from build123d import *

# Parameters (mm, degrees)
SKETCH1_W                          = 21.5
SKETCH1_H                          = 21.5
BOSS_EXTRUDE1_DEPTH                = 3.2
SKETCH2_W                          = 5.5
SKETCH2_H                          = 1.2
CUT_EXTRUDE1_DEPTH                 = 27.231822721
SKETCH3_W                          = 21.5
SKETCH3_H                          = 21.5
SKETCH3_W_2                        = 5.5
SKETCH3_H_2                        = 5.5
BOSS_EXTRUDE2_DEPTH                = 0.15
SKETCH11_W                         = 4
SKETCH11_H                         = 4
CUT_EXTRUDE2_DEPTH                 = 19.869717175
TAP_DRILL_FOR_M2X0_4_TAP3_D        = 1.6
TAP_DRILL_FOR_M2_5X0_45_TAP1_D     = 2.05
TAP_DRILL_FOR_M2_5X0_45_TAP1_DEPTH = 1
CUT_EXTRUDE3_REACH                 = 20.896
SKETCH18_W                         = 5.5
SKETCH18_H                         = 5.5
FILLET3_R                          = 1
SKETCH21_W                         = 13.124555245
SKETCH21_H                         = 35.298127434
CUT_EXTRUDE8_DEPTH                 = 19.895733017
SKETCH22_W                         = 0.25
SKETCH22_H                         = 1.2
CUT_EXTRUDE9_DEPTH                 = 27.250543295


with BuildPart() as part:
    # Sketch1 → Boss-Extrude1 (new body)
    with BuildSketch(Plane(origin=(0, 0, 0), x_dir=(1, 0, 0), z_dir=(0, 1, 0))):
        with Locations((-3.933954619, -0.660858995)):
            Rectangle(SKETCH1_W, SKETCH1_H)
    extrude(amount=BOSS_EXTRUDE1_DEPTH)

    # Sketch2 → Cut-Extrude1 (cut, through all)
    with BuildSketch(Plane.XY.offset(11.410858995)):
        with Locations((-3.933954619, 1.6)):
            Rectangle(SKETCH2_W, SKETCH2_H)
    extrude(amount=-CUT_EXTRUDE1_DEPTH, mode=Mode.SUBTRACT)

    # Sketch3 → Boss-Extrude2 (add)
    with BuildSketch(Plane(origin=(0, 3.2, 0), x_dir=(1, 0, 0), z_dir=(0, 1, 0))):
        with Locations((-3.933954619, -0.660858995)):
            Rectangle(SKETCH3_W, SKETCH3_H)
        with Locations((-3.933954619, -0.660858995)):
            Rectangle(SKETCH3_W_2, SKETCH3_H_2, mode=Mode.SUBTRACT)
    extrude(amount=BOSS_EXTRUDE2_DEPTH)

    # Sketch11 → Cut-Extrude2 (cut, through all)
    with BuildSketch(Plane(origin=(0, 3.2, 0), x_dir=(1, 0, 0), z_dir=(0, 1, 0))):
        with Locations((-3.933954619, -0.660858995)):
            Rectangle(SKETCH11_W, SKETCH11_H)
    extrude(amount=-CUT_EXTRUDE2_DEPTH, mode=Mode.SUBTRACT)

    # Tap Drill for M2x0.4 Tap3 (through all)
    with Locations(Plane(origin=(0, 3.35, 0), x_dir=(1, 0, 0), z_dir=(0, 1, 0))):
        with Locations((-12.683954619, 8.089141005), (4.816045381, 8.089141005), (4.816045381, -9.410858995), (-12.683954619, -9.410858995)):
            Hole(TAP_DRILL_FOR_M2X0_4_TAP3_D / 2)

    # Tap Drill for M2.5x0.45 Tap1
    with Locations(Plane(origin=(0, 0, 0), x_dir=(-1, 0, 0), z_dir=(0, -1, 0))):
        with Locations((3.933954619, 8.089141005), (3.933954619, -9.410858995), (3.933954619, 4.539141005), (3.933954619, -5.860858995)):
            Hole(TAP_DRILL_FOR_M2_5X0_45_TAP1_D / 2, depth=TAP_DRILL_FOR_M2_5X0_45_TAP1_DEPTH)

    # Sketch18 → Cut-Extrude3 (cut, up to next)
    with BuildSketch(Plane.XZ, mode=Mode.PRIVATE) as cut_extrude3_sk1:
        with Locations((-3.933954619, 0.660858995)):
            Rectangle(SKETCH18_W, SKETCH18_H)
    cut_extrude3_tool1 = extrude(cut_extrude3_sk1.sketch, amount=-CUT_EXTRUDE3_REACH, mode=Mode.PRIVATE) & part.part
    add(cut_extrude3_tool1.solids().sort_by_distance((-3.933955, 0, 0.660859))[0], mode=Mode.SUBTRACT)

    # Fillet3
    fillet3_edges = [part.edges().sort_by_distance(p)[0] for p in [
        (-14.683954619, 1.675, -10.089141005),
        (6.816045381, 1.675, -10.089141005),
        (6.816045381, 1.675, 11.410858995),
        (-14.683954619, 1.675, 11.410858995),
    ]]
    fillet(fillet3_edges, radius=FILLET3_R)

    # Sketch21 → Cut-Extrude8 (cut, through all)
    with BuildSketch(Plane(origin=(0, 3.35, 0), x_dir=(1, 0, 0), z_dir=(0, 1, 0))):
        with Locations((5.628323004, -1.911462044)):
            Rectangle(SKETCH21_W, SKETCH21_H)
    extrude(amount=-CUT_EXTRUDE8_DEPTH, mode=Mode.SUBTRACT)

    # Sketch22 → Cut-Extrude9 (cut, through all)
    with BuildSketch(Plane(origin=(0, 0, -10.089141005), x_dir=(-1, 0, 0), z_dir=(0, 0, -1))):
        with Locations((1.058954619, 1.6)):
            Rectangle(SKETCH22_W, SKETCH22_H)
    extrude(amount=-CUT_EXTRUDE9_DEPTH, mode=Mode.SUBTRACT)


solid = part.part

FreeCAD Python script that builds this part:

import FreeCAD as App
import Part
import Sketcher
from FreeCAD import Vector
Q = App.Units.Quantity


def edges_at(feature, points):
    """Names of the edges that pass closest to the given points."""
    edges = feature.Shape.Edges
    near = lambda p: min(range(len(edges)), key=lambda i: edges[i].distToShape(Part.Vertex(*p))[0])
    return sorted({f"Edge{near(p) + 1}" for p in points})

doc = App.newDocument("Part")
body = doc.addObject("PartDesign::Body", "Body")

# Sketch on XZ plane
sketch1 = doc.addObject("Sketcher::SketchObject", "Sketch")
body.addObject(sketch1)
sketch1.AttachmentSupport = (doc.XZ_Plane, [""])
sketch1.MapMode = "FlatFace"
sketch1.addGeometry([
    Part.LineSegment(Vector(-15, -10, 0), Vector(-15, 11, 0)),
    Part.LineSegment(Vector(-15, 11, 0), Vector(7, 11, 0)),
    Part.LineSegment(Vector(7, 11, 0), Vector(7, -10, 0)),
    Part.LineSegment(Vector(7, -10, 0), Vector(-15, -10, 0)),
], False)
sketch1.addConstraint([
    Sketcher.Constraint("Coincident", 0, 2, 1, 1),
    Sketcher.Constraint("Coincident", 1, 2, 2, 1),
    Sketcher.Constraint("Coincident", 2, 2, 3, 1),
    Sketcher.Constraint("Coincident", 3, 2, 0, 1),
    Sketcher.Constraint("Vertical", 0),
    Sketcher.Constraint("Horizontal", 1),
    Sketcher.Constraint("Vertical", 2),
    Sketcher.Constraint("Horizontal", 3),
    Sketcher.Constraint("Equal", 3, 0),
    Sketcher.Constraint("DistanceX", 1, 1, 1, 2, Q("21.5 mm")),
    Sketcher.Constraint("DistanceY", -1, 1, 0, 2, Q("11.410859 mm")),
    Sketcher.Constraint("DistanceX", 0, 2, -1, 1, Q("14.683955 mm")),
])
pad1 = doc.addObject("PartDesign::Pad", "Pad")
body.addObject(pad1)
pad1.Profile = sketch1
pad1.Length = 3.2
pad1.Reversed = True

# Sketch on XY plane
sketch2 = doc.addObject("Sketcher::SketchObject", "Sketch001")
body.addObject(sketch2)
sketch2.AttachmentSupport = (doc.XY_Plane, [""])
sketch2.MapMode = "FlatFace"
sketch2.AttachmentOffset = App.Placement(Vector(0, 0, 11.410859), App.Rotation())
sketch2.addGeometry([
    Part.LineSegment(Vector(-6.7, 2.2, 0), Vector(-6.7, 1, 0)),
    Part.LineSegment(Vector(-6.7, 1, 0), Vector(-1.2, 1, 0)),
    Part.LineSegment(Vector(-1.2, 1, 0), Vector(-1.2, 2.2, 0)),
    Part.LineSegment(Vector(-1.2, 2.2, 0), Vector(-6.7, 2.2, 0)),
], False)
sketch2.addConstraint([
    Sketcher.Constraint("Coincident", 0, 2, 1, 1),
    Sketcher.Constraint("Coincident", 1, 2, 2, 1),
    Sketcher.Constraint("Coincident", 2, 2, 3, 1),
    Sketcher.Constraint("Coincident", 3, 2, 0, 1),
    Sketcher.Constraint("Vertical", 0),
    Sketcher.Constraint("Horizontal", 1),
    Sketcher.Constraint("Vertical", 2),
    Sketcher.Constraint("Horizontal", 3),
    Sketcher.Constraint("DistanceX", 1, 1, 1, 2, Q("5.5 mm")),
    Sketcher.Constraint("DistanceY", 0, 2, 0, 1, Q("1.2 mm")),
    Sketcher.Constraint("DistanceY", -1, 1, 0, 2, Q("1 mm")),
    Sketcher.Constraint("DistanceX", 0, 2, -1, 1, Q("6.683955 mm")),
])
pocket1 = doc.addObject("PartDesign::Pocket", "Pocket")
body.addObject(pocket1)
pocket1.Profile = sketch2
pocket1.Type = "ThroughAll"

# Sketch on XZ plane
sketch3 = doc.addObject("Sketcher::SketchObject", "Sketch002")
body.addObject(sketch3)
sketch3.AttachmentSupport = (doc.XZ_Plane, [""])
sketch3.MapMode = "FlatFace"
sketch3.AttachmentOffset = App.Placement(Vector(0, 0, -3.2), App.Rotation())
sketch3.addGeometry([
    Part.LineSegment(Vector(-15, -10, 0), Vector(-15, 11, 0)),  # 0
    Part.LineSegment(Vector(-15, 11, 0), Vector(7, 11, 0)),  # 1
    Part.LineSegment(Vector(7, 11, 0), Vector(7, -10, 0)),  # 2
    Part.LineSegment(Vector(7, -10, 0), Vector(-15, -10, 0)),  # 3
    Part.LineSegment(Vector(-1, 3, 0), Vector(-7, 3, 0)),  # 4
    Part.LineSegment(Vector(-7, 3, 0), Vector(-7, -2, 0)),  # 5
    Part.LineSegment(Vector(-7, -2, 0), Vector(-1, -2, 0)),  # 6
    Part.LineSegment(Vector(-1, -2, 0), Vector(-1, 3, 0)),  # 7
], False)
sketch3.addConstraint([
    Sketcher.Constraint("Coincident", 0, 2, 1, 1),
    Sketcher.Constraint("Coincident", 1, 2, 2, 1),
    Sketcher.Constraint("Coincident", 2, 2, 3, 1),
    Sketcher.Constraint("Coincident", 3, 2, 0, 1),
    Sketcher.Constraint("Coincident", 4, 2, 5, 1),
    Sketcher.Constraint("Coincident", 5, 2, 6, 1),
    Sketcher.Constraint("Coincident", 6, 2, 7, 1),
    Sketcher.Constraint("Coincident", 7, 2, 4, 1),
    Sketcher.Constraint("Vertical", 0),
    Sketcher.Constraint("Horizontal", 1),
    Sketcher.Constraint("Vertical", 2),
    Sketcher.Constraint("Horizontal", 3),
    Sketcher.Constraint("Horizontal", 4),
    Sketcher.Constraint("Vertical", 5),
    Sketcher.Constraint("Horizontal", 6),
    Sketcher.Constraint("Vertical", 7),
    Sketcher.Constraint("Equal", 3, 0),
    Sketcher.Constraint("Equal", 6, 5),
    Sketcher.Constraint("DistanceX", 1, 1, 1, 2, Q("21.5 mm")),
    Sketcher.Constraint("DistanceX", 4, 2, 4, 1, Q("5.5 mm")),
    Sketcher.Constraint("DistanceX", 0, 2, 4, 2, Q("8 mm")),
    Sketcher.Constraint("DistanceY", 4, 2, 0, 2, Q("8 mm")),
    Sketcher.Constraint("DistanceY", -1, 1, 0, 2, Q("11.410859 mm")),
    Sketcher.Constraint("DistanceX", 0, 2, -1, 1, Q("14.683955 mm")),
])
pad2 = doc.addObject("PartDesign::Pad", "Pad001")
body.addObject(pad2)
pad2.Profile = sketch3
pad2.Length = 0.15
pad2.Reversed = True

# Sketch on XZ plane
sketch4 = doc.addObject("Sketcher::SketchObject", "Sketch003")
body.addObject(sketch4)
sketch4.AttachmentSupport = (doc.XZ_Plane, [""])
sketch4.MapMode = "FlatFace"
sketch4.AttachmentOffset = App.Placement(Vector(0, 0, -3.2), App.Rotation())
sketch4.addGeometry([
    Part.LineSegment(Vector(-5.9, -1.3, 0), Vector(-5.9, 2.7, 0)),
    Part.LineSegment(Vector(-5.9, 2.7, 0), Vector(-1.9, 2.7, 0)),
    Part.LineSegment(Vector(-1.9, 2.7, 0), Vector(-1.9, -1.3, 0)),
    Part.LineSegment(Vector(-1.9, -1.3, 0), Vector(-5.9, -1.3, 0)),
], False)
sketch4.addConstraint([
    Sketcher.Constraint("Coincident", 0, 2, 1, 1),
    Sketcher.Constraint("Coincident", 1, 2, 2, 1),
    Sketcher.Constraint("Coincident", 2, 2, 3, 1),
    Sketcher.Constraint("Coincident", 3, 2, 0, 1),
    Sketcher.Constraint("Vertical", 0),
    Sketcher.Constraint("Horizontal", 1),
    Sketcher.Constraint("Vertical", 2),
    Sketcher.Constraint("Horizontal", 3),
    Sketcher.Constraint("Equal", 3, 0),
    Sketcher.Constraint("DistanceX", 1, 1, 1, 2, Q("4 mm")),
    Sketcher.Constraint("DistanceY", -1, 1, 0, 2, Q("2.660859 mm")),
    Sketcher.Constraint("DistanceX", 0, 2, -1, 1, Q("5.933955 mm")),
])
pocket2 = doc.addObject("PartDesign::Pocket", "Pocket001")
body.addObject(pocket2)
pocket2.Profile = sketch4
pocket2.Type = "ThroughAll"
pocket2.Reversed = True

# Sketch on XZ plane
sketch5 = doc.addObject("Sketcher::SketchObject", "Sketch004")
body.addObject(sketch5)
sketch5.AttachmentSupport = (doc.XZ_Plane, [""])
sketch5.MapMode = "FlatFace"
sketch5.AttachmentOffset = App.Placement(Vector(0, 0, -3.35), App.Rotation())
sketch5.addGeometry([
    Part.Circle(Vector(-12.7, -8.1, 0), Vector(0, 0, 1), 0.8),
    Part.Circle(Vector(4.8, -8.1, 0), Vector(0, 0, 1), 0.8),
    Part.Circle(Vector(4.8, 9.4, 0), Vector(0, 0, 1), 0.8),
    Part.Circle(Vector(-12.7, 9.4, 0), Vector(0, 0, 1), 0.8),
], False)
sketch5.addConstraint([
    Sketcher.Constraint("Equal", 0, 1),
    Sketcher.Constraint("Equal", 1, 2),
    Sketcher.Constraint("Equal", 2, 3),
    Sketcher.Constraint("Horizontal", 0, 3, 1, 3),
    Sketcher.Constraint("Horizontal", 2, 3, 3, 3),
    Sketcher.Constraint("Vertical", 1, 3, 2, 3),
    Sketcher.Constraint("Vertical", 0, 3, 3, 3),
    Sketcher.Constraint("Diameter", 0, Q("1.6 mm")),
    Sketcher.Constraint("DistanceX", 0, 3, 1, 3, Q("17.5 mm")),
    Sketcher.Constraint("DistanceY", 1, 3, 2, 3, Q("17.5 mm")),
    Sketcher.Constraint("DistanceY", 0, 3, -1, 1, Q("8.089141 mm")),
    Sketcher.Constraint("DistanceX", 0, 3, -1, 1, Q("12.683955 mm")),
])
doc.recompute()
hole = doc.addObject("PartDesign::Hole", "Hole")
body.addObject(hole)
hole.Profile = sketch5
hole.ThreadType = "None"
hole.Diameter = 1.6
hole.DepthType = "ThroughAll"
hole.Reversed = True

# Sketch on XZ plane
sketch6 = doc.addObject("Sketcher::SketchObject", "Sketch005")
body.addObject(sketch6)
sketch6.AttachmentSupport = (doc.XZ_Plane, [""])
sketch6.MapMode = "FlatFace"
sketch6.addGeometry([
    Part.Circle(Vector(-3.9, -8.1, 0), Vector(0, 0, 1), 1),
    Part.Circle(Vector(-3.9, 9.4, 0), Vector(0, 0, 1), 1),
    Part.Circle(Vector(-3.9, -4.5, 0), Vector(0, 0, 1), 1),
    Part.Circle(Vector(-3.9, 5.9, 0), Vector(0, 0, 1), 1),
], False)
sketch6.addConstraint([
    Sketcher.Constraint("Equal", 0, 1),
    Sketcher.Constraint("Equal", 1, 2),
    Sketcher.Constraint("Equal", 2, 3),
    Sketcher.Constraint("Vertical", 0, 3, 1, 3),
    Sketcher.Constraint("Vertical", 1, 3, 2, 3),
    Sketcher.Constraint("Vertical", 2, 3, 3, 3),
    Sketcher.Constraint("Diameter", 0, Q("2.05 mm")),
    Sketcher.Constraint("DistanceY", 0, 3, 1, 3, Q("17.5 mm")),
    Sketcher.Constraint("DistanceY", 2, 3, 3, 3, Q("10.4 mm")),
    Sketcher.Constraint("DistanceY", 0, 3, 2, 3, Q("3.55 mm")),
    Sketcher.Constraint("DistanceY", 0, 3, -1, 1, Q("8.089141 mm")),
    Sketcher.Constraint("DistanceX", 0, 3, -1, 1, Q("3.933955 mm")),
])
doc.recompute()
hole2 = doc.addObject("PartDesign::Hole", "Hole001")
body.addObject(hole2)
hole2.Profile = sketch6
hole2.ThreadType = "None"
hole2.Diameter = 2.05
hole2.DepthType = "Dimension"
hole2.Depth = 1
hole2.DrillPoint = "Flat"

# Sketch on XZ plane
sketch7 = doc.addObject("Sketcher::SketchObject", "Sketch006")
body.addObject(sketch7)
sketch7.AttachmentSupport = (doc.XZ_Plane, [""])
sketch7.MapMode = "FlatFace"
sketch7.addGeometry([
    Part.LineSegment(Vector(-7, 3, 0), Vector(-7, -2, 0)),
    Part.LineSegment(Vector(-7, -2, 0), Vector(-1, -2, 0)),
    Part.LineSegment(Vector(-1, -2, 0), Vector(-1, 3, 0)),
    Part.LineSegment(Vector(-1, 3, 0), Vector(-7, 3, 0)),
], False)
sketch7.addConstraint([
    Sketcher.Constraint("Coincident", 0, 2, 1, 1),
    Sketcher.Constraint("Coincident", 1, 2, 2, 1),
    Sketcher.Constraint("Coincident", 2, 2, 3, 1),
    Sketcher.Constraint("Coincident", 3, 2, 0, 1),
    Sketcher.Constraint("Vertical", 0),
    Sketcher.Constraint("Horizontal", 1),
    Sketcher.Constraint("Vertical", 2),
    Sketcher.Constraint("Horizontal", 3),
    Sketcher.Constraint("Equal", 3, 0),
    Sketcher.Constraint("DistanceX", 1, 1, 1, 2, Q("5.5 mm")),
    Sketcher.Constraint("DistanceY", 0, 2, -1, 1, Q("2.089141 mm")),
    Sketcher.Constraint("DistanceX", 0, 2, -1, 1, Q("6.683955 mm")),
])
pocket3 = doc.addObject("PartDesign::Pocket", "Pocket002")
body.addObject(pocket3)
pocket3.Profile = sketch7
pocket3.Length = 1
doc.recompute()

fillet = doc.addObject("PartDesign::Fillet", "Fillet")
body.addObject(fillet)
fillet.Base = (pocket3, edges_at(pocket3, [
    (-14.684, 1.675, -10.089),
    (6.816, 1.675, -10.089),
    (6.816, 1.675, 11.411),
    (-14.684, 1.675, 11.411),
]))
fillet.Radius = 1

# Sketch on XZ plane
sketch8 = doc.addObject("Sketcher::SketchObject", "Sketch007")
body.addObject(sketch8)
sketch8.AttachmentSupport = (doc.XZ_Plane, [""])
sketch8.MapMode = "FlatFace"
sketch8.AttachmentOffset = App.Placement(Vector(0, 0, -3.35), App.Rotation())
sketch8.addGeometry([
    Part.LineSegment(Vector(-1, -16, 0), Vector(-1, 20, 0)),
    Part.LineSegment(Vector(-1, 20, 0), Vector(12, 20, 0)),
    Part.LineSegment(Vector(12, 20, 0), Vector(12, -16, 0)),
    Part.LineSegment(Vector(12, -16, 0), Vector(-1, -16, 0)),
], False)
sketch8.addConstraint([
    Sketcher.Constraint("Coincident", 0, 2, 1, 1),
    Sketcher.Constraint("Coincident", 1, 2, 2, 1),
    Sketcher.Constraint("Coincident", 2, 2, 3, 1),
    Sketcher.Constraint("Coincident", 3, 2, 0, 1),
    Sketcher.Constraint("Vertical", 0),
    Sketcher.Constraint("Horizontal", 1),
    Sketcher.Constraint("Vertical", 2),
    Sketcher.Constraint("Horizontal", 3),
    Sketcher.Constraint("DistanceX", -1, 1, 1, 2, Q("12.190601 mm")),
    Sketcher.Constraint("DistanceY", 2, 2, -1, 1, Q("15.737602 mm")),
    Sketcher.Constraint("DistanceX", 1, 1, 1, 2, Q("13.124555 mm")),
    Sketcher.Constraint("DistanceY", 0, 1, 0, 2, Q("35.298127 mm")),
])
pocket4 = doc.addObject("PartDesign::Pocket", "Pocket003")
body.addObject(pocket4)
pocket4.Profile = sketch8
pocket4.Type = "ThroughAll"
pocket4.Reversed = True

# Sketch on XY plane
sketch9 = doc.addObject("Sketcher::SketchObject", "Sketch008")
body.addObject(sketch9)
sketch9.AttachmentSupport = (doc.XY_Plane, [""])
sketch9.MapMode = "FlatFace"
sketch9.AttachmentOffset = App.Placement(Vector(0, 0, -10.089141), App.Rotation())
sketch9.addGeometry([
    Part.LineSegment(Vector(-0.93, 2.2, 0), Vector(-0.93, 1, 0)),
    Part.LineSegment(Vector(-0.93, 1, 0), Vector(-1.18, 1, 0)),
    Part.LineSegment(Vector(-1.18, 1, 0), Vector(-1.18, 2.2, 0)),
    Part.LineSegment(Vector(-1.18, 2.2, 0), Vector(-0.93, 2.2, 0)),
], False)
sketch9.addConstraint([
    Sketcher.Constraint("Coincident", 0, 2, 1, 1),
    Sketcher.Constraint("Coincident", 1, 2, 2, 1),
    Sketcher.Constraint("Coincident", 2, 2, 3, 1),
    Sketcher.Constraint("Coincident", 3, 2, 0, 1),
    Sketcher.Constraint("Vertical", 0),
    Sketcher.Constraint("Horizontal", 1),
    Sketcher.Constraint("Vertical", 2),
    Sketcher.Constraint("Horizontal", 3),
    Sketcher.Constraint("DistanceY", 0, 2, 0, 1, Q("1.2 mm")),
    Sketcher.Constraint("DistanceY", -1, 1, 0, 2, Q("1 mm")),
    Sketcher.Constraint("DistanceX", 1, 2, 1, 1, Q("0.25 mm")),
    Sketcher.Constraint("DistanceX", 0, 2, -1, 1, Q("0.933955 mm")),
])
pocket5 = doc.addObject("PartDesign::Pocket", "Pocket004")
body.addObject(pocket5)
pocket5.Profile = sketch9
pocket5.Type = "ThroughAll"
pocket5.Reversed = True

doc.recompute()
